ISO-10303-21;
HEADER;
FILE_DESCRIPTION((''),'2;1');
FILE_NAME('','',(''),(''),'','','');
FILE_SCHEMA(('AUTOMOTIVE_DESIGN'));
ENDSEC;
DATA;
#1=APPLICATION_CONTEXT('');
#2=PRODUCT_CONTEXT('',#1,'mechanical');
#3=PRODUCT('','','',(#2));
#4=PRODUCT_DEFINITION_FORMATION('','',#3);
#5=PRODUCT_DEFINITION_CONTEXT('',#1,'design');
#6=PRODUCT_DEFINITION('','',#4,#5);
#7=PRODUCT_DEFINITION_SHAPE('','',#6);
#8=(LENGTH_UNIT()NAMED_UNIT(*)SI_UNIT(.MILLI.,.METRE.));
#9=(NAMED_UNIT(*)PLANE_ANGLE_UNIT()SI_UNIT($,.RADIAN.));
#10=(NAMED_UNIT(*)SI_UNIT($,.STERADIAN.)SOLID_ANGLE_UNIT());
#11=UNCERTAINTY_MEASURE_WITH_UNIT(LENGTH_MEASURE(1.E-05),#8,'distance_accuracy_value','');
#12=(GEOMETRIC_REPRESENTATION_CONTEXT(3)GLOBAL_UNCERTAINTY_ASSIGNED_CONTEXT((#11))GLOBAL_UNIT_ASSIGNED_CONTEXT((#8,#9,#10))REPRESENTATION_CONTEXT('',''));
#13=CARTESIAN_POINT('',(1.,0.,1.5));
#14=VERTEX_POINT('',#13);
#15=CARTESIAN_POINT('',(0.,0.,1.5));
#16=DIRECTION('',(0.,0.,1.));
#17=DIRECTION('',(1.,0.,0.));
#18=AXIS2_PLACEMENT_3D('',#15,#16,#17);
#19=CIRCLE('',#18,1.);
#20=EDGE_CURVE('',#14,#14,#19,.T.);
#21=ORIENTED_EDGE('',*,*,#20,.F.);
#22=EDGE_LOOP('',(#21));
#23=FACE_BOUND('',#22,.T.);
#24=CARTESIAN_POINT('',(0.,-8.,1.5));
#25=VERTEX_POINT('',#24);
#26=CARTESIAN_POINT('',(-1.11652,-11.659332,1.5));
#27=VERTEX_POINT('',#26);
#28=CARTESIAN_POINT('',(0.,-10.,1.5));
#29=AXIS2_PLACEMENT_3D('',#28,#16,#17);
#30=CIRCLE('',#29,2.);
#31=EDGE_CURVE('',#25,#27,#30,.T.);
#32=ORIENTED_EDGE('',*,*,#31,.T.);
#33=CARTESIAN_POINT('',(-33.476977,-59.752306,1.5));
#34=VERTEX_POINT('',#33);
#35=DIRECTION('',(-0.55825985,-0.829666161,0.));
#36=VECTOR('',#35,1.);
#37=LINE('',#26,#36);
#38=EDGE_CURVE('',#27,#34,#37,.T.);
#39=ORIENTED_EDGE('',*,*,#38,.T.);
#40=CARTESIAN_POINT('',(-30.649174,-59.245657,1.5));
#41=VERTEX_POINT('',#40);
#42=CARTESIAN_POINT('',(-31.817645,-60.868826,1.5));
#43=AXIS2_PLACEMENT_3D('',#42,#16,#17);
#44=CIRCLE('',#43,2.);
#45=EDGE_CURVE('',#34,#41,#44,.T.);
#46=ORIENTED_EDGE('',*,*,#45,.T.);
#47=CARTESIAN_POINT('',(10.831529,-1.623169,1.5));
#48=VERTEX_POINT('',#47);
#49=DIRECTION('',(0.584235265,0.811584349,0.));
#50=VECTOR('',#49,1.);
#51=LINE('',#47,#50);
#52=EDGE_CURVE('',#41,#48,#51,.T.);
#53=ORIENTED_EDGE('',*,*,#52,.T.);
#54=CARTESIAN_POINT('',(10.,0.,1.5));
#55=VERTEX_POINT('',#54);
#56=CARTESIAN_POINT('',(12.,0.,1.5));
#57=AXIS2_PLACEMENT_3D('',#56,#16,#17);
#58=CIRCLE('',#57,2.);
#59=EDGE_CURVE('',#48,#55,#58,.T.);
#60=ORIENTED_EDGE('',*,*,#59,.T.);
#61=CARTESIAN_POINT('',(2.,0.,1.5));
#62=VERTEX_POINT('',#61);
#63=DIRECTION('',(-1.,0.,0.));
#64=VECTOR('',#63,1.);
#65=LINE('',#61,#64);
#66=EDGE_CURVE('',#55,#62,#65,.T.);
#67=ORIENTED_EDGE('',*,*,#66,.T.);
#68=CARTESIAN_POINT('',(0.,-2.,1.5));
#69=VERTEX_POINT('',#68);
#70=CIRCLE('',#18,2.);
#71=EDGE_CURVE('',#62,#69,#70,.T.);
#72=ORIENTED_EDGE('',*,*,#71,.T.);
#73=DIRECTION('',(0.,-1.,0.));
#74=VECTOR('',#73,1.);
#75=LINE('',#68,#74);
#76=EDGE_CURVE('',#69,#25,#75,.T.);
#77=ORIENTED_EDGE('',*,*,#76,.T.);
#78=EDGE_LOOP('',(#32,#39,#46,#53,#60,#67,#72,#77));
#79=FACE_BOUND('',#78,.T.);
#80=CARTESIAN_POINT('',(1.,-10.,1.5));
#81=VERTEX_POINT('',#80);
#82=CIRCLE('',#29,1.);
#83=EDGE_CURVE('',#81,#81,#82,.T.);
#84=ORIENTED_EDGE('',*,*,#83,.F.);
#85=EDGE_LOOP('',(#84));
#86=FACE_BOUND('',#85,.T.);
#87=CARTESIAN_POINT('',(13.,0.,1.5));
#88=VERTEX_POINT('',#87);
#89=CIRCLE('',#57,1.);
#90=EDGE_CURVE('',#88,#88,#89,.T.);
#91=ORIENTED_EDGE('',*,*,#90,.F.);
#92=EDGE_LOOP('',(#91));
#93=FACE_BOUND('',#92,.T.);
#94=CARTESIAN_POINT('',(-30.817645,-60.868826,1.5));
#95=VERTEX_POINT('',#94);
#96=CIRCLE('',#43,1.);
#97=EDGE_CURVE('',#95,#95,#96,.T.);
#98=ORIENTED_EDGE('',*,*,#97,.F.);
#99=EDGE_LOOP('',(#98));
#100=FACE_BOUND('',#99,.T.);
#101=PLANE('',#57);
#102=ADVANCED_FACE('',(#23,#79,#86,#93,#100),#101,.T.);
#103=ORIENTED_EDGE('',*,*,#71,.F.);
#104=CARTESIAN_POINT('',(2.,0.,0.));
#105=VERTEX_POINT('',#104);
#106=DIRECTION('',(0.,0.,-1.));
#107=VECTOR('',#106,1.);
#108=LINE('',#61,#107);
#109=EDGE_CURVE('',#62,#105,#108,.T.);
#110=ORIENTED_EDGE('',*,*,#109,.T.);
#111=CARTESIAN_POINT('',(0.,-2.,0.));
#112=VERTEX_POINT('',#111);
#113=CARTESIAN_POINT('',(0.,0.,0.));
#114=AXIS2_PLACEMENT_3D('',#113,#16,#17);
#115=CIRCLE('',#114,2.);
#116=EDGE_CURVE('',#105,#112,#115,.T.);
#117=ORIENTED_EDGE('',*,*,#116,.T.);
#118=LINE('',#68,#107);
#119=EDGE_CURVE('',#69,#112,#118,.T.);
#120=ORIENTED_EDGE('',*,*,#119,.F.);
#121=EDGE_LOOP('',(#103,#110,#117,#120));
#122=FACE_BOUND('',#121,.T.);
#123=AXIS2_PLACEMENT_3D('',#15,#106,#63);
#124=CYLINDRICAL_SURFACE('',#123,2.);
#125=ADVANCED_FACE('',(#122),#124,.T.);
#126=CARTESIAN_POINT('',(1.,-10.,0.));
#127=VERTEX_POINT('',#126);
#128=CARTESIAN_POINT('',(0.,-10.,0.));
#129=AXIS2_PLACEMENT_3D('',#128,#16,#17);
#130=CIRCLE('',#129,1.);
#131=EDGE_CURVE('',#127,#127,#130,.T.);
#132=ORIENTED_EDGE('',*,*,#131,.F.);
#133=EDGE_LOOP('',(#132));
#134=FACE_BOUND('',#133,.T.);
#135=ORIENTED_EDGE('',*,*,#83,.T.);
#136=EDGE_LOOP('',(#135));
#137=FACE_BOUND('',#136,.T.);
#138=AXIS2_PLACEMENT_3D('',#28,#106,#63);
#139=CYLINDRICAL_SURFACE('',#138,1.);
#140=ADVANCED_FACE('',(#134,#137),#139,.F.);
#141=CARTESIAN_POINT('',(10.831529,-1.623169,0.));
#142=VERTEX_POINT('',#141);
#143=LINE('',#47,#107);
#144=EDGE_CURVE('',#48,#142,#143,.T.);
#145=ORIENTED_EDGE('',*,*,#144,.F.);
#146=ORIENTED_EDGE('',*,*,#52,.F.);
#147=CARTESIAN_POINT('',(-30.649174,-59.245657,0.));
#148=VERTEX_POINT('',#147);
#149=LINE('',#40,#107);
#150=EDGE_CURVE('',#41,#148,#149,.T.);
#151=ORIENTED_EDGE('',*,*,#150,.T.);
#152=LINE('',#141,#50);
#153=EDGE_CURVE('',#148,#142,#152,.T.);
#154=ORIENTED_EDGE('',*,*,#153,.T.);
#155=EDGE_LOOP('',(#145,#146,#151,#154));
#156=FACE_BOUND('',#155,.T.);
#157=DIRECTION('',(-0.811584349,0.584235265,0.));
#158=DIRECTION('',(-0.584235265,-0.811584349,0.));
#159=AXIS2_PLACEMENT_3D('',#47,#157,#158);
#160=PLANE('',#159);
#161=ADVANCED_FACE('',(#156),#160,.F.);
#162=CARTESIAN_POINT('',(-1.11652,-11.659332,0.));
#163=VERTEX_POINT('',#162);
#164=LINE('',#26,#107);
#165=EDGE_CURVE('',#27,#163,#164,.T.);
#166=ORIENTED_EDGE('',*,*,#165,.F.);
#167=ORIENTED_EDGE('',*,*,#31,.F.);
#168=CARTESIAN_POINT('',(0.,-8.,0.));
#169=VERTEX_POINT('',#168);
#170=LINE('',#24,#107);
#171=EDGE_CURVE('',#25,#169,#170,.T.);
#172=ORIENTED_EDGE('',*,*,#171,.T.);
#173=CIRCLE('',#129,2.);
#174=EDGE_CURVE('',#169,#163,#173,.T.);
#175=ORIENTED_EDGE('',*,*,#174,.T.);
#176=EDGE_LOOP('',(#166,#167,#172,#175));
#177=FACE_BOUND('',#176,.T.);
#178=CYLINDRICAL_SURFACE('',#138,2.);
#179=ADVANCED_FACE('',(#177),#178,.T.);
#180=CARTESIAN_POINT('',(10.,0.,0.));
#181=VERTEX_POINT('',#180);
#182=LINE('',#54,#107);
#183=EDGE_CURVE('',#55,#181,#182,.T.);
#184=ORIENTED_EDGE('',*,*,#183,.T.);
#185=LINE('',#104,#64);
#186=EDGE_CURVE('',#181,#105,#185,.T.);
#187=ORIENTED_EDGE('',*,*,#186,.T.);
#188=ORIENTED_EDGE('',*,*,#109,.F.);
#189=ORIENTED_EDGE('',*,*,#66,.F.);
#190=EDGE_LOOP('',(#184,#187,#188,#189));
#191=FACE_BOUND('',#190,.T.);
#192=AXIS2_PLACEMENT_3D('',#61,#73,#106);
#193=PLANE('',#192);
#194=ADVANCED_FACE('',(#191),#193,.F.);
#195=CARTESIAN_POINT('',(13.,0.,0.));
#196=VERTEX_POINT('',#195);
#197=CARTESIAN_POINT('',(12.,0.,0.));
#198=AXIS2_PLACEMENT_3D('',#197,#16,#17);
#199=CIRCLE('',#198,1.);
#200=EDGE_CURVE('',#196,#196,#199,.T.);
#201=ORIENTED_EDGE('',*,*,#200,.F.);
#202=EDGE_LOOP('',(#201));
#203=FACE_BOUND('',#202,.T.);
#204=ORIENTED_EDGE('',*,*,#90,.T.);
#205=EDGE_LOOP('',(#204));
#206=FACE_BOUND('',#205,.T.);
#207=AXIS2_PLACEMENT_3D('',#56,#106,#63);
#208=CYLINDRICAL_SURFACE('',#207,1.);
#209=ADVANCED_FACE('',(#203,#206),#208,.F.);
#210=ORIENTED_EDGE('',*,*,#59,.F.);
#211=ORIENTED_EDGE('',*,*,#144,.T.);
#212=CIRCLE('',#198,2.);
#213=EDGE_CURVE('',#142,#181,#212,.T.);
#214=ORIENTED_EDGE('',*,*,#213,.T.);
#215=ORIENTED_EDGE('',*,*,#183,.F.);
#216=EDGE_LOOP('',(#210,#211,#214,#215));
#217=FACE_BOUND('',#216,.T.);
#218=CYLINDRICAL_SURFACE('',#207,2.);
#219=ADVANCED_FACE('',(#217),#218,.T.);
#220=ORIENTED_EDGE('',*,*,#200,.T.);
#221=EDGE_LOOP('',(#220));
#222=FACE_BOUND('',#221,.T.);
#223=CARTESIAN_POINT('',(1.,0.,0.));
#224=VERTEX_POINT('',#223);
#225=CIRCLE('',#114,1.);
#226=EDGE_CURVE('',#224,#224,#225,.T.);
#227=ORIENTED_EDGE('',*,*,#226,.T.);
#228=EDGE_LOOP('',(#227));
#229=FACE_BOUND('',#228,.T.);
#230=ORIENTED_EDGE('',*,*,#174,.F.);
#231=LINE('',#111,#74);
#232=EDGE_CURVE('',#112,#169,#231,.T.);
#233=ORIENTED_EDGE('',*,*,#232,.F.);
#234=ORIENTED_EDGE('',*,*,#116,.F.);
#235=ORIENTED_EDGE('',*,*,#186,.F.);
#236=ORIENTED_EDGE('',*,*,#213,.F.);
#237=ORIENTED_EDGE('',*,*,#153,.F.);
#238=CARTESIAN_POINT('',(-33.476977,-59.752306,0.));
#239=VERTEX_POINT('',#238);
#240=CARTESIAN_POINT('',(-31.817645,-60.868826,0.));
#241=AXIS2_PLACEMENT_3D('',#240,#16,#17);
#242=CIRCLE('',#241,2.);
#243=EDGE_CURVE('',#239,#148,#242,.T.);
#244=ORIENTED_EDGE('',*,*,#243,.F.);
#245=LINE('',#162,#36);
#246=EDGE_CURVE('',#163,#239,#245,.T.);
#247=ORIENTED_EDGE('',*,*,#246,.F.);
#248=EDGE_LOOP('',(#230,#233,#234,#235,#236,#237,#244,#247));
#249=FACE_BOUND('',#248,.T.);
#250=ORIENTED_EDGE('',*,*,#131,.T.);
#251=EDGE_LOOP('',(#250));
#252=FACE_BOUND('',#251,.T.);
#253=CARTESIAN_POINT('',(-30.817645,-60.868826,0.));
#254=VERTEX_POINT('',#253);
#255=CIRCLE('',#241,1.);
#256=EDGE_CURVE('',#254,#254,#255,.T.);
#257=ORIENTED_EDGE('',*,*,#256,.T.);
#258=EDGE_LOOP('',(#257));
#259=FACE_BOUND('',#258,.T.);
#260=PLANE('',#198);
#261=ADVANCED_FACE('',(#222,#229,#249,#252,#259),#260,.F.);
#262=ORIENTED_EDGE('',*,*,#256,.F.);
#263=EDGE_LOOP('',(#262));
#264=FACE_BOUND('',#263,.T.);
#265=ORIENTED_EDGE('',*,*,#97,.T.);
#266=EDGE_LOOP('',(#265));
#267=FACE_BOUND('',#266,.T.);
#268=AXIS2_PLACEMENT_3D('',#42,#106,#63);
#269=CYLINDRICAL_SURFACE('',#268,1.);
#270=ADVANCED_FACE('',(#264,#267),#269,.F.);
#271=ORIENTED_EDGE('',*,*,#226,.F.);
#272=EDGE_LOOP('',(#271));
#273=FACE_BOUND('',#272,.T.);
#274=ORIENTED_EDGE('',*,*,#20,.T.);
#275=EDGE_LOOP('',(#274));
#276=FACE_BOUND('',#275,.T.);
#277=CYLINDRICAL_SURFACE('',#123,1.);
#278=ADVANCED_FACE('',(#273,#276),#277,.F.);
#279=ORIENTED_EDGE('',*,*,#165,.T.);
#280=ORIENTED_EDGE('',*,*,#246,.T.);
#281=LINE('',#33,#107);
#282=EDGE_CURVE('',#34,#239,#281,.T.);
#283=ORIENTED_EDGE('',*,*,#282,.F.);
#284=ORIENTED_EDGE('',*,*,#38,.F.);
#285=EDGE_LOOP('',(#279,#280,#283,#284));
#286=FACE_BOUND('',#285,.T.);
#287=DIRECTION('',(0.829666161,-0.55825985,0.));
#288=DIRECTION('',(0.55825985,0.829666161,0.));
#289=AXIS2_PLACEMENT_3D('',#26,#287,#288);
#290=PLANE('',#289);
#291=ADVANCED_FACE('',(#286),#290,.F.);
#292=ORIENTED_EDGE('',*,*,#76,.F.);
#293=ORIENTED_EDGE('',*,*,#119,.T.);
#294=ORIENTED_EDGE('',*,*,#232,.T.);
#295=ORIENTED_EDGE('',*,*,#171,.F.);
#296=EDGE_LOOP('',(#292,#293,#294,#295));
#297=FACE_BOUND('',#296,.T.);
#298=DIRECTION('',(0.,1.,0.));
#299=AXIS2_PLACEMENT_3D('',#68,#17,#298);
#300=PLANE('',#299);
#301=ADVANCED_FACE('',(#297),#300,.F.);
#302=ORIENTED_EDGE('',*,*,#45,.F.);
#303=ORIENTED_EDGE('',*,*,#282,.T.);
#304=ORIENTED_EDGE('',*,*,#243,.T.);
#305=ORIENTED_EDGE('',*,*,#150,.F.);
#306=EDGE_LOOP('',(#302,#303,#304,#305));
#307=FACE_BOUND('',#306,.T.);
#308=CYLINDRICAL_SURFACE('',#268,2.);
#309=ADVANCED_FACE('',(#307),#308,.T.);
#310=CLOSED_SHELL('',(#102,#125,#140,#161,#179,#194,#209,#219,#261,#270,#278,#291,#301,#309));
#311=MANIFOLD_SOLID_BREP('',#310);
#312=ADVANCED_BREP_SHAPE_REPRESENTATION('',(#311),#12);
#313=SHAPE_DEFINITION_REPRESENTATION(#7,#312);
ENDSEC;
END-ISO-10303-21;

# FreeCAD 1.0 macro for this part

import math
import FreeCAD as App
import Part
import Sketcher
from FreeCAD import Vector

doc = App.newDocument("Part")
body = doc.addObject("PartDesign::Body", "Body")

# Sketch on XY plane
sketch1 = doc.addObject("Sketcher::SketchObject", "Sketch")
body.addObject(sketch1)
sketch1.AttachmentSupport = (doc.XY_Plane, [""])
sketch1.MapMode = "FlatFace"
sketch1.addGeometry([
    Part.LineSegment(Vector(-30.649174, -59.245657, 0), Vector(10.831529, -1.623169, 0)),  # 0
    Part.ArcOfCircle(Part.Circle(Vector(12, 0, 0), Vector(0, 0, 1), 2), math.radians(-125.748983), math.radians(180)),  # 1
    Part.LineSegment(Vector(10, 0, 0), Vector(2, 0, 0)),  # 2
    Part.ArcOfCircle(Part.Circle(Vector(0, 0, 0), Vector(0, 0, 1), 2), math.radians(0), math.radians(270)),  # 3
    Part.LineSegment(Vector(0, -2, 0), Vector(0, -8, 0)),  # 4
    Part.ArcOfCircle(Part.Circle(Vector(0, -10, 0), Vector(0, 0, 1), 2), math.radians(90), math.radians(236.06446)),  # 5
    Part.LineSegment(Vector(-1.11652, -11.659332, 0), Vector(-33.476977, -59.752306, 0)),  # 6
    Part.ArcOfCircle(Part.Circle(Vector(-31.817645, -60.868826, 0), Vector(0, 0, 1), 2), math.radians(146.06446), math.radians(414.251017)),  # 7
    Part.Circle(Vector(-31.817645, -60.868826, 0), Vector(0, 0, 1), 1),  # 8
    Part.Circle(Vector(12, 0, 0), Vector(0, 0, 1), 1),  # 9
    Part.Circle(Vector(0, -10, 0), Vector(0, 0, 1), 1),  # 10
    Part.Circle(Vector(0, 0, 0), Vector(0, 0, 1), 1),  # 11
], False)
sketch1.addConstraint([
    Sketcher.Constraint("Coincident", 0, 2, 1, 1),
    Sketcher.Constraint("Coincident", 1, 2, 2, 1),
    Sketcher.Constraint("Coincident", 2, 2, 3, 1),
    Sketcher.Constraint("Coincident", 3, 2, 4, 1),
    Sketcher.Constraint("Coincident", 4, 2, 5, 1),
    Sketcher.Constraint("Coincident", 5, 2, 6, 1),
    Sketcher.Constraint("Tangent", 6, 2, 7, 1),
    Sketcher.Constraint("Coincident", 7, 2, 0, 1),
    Sketcher.Constraint("Horizontal", 2),
    Sketcher.Constraint("Vertical", 4),
    Sketcher.Constraint("Coincident", 3, 3, -1, 1),
    Sketcher.Constraint("Coincident", 11, 3, -1, 1),
    Sketcher.Constraint("Coincident", 8, 3, 7, 3),
    Sketcher.Constraint("Coincident", 9, 3, 1, 3),
    Sketcher.Constraint("Coincident", 10, 3, 5, 3),
    Sketcher.Constraint("Equal", 1, 3),
    Sketcher.Constraint("Equal", 3, 5),
    Sketcher.Constraint("Equal", 5, 7),
    Sketcher.Constraint("Equal", 8, 9),
    Sketcher.Constraint("Equal", 9, 10),
    Sketcher.Constraint("Equal", 10, 11),
    Sketcher.Constraint("PointOnObject", 1, 3, -1),
    Sketcher.Constraint("PointOnObject", 5, 3, -2),
    Sketcher.Constraint("PointOnObject", 1, 2, -1),
    Sketcher.Constraint("PointOnObject", 3, 2, -2),
    Sketcher.Constraint("Diameter", 8, 2.0),
    Sketcher.Constraint("Radius", 1, 2.0),
    Sketcher.Constraint("DistanceX", 2, 2, 2, 1, 8.0),
    Sketcher.Constraint("DistanceY", 4, 2, 4, 1, 6.0),
    Sketcher.Constraint("Distance", 0, 71.0),
    Sketcher.Constraint("DistanceX", -1, 1, 0, 2, 10.831529),
    Sketcher.Constraint("DistanceX", 5, 2, -1, 1, 1.11652),
    Sketcher.Constraint("DistanceY", 7, 3, 6, 2, 1.11652),
    Sketcher.Constraint("DistanceX", 7, 3, 7, 2, 1.168471),
])
pad1 = doc.addObject("PartDesign::Pad", "Pad")
body.addObject(pad1)
pad1.Profile = sketch1
pad1.Length = 1.5

doc.recompute()
